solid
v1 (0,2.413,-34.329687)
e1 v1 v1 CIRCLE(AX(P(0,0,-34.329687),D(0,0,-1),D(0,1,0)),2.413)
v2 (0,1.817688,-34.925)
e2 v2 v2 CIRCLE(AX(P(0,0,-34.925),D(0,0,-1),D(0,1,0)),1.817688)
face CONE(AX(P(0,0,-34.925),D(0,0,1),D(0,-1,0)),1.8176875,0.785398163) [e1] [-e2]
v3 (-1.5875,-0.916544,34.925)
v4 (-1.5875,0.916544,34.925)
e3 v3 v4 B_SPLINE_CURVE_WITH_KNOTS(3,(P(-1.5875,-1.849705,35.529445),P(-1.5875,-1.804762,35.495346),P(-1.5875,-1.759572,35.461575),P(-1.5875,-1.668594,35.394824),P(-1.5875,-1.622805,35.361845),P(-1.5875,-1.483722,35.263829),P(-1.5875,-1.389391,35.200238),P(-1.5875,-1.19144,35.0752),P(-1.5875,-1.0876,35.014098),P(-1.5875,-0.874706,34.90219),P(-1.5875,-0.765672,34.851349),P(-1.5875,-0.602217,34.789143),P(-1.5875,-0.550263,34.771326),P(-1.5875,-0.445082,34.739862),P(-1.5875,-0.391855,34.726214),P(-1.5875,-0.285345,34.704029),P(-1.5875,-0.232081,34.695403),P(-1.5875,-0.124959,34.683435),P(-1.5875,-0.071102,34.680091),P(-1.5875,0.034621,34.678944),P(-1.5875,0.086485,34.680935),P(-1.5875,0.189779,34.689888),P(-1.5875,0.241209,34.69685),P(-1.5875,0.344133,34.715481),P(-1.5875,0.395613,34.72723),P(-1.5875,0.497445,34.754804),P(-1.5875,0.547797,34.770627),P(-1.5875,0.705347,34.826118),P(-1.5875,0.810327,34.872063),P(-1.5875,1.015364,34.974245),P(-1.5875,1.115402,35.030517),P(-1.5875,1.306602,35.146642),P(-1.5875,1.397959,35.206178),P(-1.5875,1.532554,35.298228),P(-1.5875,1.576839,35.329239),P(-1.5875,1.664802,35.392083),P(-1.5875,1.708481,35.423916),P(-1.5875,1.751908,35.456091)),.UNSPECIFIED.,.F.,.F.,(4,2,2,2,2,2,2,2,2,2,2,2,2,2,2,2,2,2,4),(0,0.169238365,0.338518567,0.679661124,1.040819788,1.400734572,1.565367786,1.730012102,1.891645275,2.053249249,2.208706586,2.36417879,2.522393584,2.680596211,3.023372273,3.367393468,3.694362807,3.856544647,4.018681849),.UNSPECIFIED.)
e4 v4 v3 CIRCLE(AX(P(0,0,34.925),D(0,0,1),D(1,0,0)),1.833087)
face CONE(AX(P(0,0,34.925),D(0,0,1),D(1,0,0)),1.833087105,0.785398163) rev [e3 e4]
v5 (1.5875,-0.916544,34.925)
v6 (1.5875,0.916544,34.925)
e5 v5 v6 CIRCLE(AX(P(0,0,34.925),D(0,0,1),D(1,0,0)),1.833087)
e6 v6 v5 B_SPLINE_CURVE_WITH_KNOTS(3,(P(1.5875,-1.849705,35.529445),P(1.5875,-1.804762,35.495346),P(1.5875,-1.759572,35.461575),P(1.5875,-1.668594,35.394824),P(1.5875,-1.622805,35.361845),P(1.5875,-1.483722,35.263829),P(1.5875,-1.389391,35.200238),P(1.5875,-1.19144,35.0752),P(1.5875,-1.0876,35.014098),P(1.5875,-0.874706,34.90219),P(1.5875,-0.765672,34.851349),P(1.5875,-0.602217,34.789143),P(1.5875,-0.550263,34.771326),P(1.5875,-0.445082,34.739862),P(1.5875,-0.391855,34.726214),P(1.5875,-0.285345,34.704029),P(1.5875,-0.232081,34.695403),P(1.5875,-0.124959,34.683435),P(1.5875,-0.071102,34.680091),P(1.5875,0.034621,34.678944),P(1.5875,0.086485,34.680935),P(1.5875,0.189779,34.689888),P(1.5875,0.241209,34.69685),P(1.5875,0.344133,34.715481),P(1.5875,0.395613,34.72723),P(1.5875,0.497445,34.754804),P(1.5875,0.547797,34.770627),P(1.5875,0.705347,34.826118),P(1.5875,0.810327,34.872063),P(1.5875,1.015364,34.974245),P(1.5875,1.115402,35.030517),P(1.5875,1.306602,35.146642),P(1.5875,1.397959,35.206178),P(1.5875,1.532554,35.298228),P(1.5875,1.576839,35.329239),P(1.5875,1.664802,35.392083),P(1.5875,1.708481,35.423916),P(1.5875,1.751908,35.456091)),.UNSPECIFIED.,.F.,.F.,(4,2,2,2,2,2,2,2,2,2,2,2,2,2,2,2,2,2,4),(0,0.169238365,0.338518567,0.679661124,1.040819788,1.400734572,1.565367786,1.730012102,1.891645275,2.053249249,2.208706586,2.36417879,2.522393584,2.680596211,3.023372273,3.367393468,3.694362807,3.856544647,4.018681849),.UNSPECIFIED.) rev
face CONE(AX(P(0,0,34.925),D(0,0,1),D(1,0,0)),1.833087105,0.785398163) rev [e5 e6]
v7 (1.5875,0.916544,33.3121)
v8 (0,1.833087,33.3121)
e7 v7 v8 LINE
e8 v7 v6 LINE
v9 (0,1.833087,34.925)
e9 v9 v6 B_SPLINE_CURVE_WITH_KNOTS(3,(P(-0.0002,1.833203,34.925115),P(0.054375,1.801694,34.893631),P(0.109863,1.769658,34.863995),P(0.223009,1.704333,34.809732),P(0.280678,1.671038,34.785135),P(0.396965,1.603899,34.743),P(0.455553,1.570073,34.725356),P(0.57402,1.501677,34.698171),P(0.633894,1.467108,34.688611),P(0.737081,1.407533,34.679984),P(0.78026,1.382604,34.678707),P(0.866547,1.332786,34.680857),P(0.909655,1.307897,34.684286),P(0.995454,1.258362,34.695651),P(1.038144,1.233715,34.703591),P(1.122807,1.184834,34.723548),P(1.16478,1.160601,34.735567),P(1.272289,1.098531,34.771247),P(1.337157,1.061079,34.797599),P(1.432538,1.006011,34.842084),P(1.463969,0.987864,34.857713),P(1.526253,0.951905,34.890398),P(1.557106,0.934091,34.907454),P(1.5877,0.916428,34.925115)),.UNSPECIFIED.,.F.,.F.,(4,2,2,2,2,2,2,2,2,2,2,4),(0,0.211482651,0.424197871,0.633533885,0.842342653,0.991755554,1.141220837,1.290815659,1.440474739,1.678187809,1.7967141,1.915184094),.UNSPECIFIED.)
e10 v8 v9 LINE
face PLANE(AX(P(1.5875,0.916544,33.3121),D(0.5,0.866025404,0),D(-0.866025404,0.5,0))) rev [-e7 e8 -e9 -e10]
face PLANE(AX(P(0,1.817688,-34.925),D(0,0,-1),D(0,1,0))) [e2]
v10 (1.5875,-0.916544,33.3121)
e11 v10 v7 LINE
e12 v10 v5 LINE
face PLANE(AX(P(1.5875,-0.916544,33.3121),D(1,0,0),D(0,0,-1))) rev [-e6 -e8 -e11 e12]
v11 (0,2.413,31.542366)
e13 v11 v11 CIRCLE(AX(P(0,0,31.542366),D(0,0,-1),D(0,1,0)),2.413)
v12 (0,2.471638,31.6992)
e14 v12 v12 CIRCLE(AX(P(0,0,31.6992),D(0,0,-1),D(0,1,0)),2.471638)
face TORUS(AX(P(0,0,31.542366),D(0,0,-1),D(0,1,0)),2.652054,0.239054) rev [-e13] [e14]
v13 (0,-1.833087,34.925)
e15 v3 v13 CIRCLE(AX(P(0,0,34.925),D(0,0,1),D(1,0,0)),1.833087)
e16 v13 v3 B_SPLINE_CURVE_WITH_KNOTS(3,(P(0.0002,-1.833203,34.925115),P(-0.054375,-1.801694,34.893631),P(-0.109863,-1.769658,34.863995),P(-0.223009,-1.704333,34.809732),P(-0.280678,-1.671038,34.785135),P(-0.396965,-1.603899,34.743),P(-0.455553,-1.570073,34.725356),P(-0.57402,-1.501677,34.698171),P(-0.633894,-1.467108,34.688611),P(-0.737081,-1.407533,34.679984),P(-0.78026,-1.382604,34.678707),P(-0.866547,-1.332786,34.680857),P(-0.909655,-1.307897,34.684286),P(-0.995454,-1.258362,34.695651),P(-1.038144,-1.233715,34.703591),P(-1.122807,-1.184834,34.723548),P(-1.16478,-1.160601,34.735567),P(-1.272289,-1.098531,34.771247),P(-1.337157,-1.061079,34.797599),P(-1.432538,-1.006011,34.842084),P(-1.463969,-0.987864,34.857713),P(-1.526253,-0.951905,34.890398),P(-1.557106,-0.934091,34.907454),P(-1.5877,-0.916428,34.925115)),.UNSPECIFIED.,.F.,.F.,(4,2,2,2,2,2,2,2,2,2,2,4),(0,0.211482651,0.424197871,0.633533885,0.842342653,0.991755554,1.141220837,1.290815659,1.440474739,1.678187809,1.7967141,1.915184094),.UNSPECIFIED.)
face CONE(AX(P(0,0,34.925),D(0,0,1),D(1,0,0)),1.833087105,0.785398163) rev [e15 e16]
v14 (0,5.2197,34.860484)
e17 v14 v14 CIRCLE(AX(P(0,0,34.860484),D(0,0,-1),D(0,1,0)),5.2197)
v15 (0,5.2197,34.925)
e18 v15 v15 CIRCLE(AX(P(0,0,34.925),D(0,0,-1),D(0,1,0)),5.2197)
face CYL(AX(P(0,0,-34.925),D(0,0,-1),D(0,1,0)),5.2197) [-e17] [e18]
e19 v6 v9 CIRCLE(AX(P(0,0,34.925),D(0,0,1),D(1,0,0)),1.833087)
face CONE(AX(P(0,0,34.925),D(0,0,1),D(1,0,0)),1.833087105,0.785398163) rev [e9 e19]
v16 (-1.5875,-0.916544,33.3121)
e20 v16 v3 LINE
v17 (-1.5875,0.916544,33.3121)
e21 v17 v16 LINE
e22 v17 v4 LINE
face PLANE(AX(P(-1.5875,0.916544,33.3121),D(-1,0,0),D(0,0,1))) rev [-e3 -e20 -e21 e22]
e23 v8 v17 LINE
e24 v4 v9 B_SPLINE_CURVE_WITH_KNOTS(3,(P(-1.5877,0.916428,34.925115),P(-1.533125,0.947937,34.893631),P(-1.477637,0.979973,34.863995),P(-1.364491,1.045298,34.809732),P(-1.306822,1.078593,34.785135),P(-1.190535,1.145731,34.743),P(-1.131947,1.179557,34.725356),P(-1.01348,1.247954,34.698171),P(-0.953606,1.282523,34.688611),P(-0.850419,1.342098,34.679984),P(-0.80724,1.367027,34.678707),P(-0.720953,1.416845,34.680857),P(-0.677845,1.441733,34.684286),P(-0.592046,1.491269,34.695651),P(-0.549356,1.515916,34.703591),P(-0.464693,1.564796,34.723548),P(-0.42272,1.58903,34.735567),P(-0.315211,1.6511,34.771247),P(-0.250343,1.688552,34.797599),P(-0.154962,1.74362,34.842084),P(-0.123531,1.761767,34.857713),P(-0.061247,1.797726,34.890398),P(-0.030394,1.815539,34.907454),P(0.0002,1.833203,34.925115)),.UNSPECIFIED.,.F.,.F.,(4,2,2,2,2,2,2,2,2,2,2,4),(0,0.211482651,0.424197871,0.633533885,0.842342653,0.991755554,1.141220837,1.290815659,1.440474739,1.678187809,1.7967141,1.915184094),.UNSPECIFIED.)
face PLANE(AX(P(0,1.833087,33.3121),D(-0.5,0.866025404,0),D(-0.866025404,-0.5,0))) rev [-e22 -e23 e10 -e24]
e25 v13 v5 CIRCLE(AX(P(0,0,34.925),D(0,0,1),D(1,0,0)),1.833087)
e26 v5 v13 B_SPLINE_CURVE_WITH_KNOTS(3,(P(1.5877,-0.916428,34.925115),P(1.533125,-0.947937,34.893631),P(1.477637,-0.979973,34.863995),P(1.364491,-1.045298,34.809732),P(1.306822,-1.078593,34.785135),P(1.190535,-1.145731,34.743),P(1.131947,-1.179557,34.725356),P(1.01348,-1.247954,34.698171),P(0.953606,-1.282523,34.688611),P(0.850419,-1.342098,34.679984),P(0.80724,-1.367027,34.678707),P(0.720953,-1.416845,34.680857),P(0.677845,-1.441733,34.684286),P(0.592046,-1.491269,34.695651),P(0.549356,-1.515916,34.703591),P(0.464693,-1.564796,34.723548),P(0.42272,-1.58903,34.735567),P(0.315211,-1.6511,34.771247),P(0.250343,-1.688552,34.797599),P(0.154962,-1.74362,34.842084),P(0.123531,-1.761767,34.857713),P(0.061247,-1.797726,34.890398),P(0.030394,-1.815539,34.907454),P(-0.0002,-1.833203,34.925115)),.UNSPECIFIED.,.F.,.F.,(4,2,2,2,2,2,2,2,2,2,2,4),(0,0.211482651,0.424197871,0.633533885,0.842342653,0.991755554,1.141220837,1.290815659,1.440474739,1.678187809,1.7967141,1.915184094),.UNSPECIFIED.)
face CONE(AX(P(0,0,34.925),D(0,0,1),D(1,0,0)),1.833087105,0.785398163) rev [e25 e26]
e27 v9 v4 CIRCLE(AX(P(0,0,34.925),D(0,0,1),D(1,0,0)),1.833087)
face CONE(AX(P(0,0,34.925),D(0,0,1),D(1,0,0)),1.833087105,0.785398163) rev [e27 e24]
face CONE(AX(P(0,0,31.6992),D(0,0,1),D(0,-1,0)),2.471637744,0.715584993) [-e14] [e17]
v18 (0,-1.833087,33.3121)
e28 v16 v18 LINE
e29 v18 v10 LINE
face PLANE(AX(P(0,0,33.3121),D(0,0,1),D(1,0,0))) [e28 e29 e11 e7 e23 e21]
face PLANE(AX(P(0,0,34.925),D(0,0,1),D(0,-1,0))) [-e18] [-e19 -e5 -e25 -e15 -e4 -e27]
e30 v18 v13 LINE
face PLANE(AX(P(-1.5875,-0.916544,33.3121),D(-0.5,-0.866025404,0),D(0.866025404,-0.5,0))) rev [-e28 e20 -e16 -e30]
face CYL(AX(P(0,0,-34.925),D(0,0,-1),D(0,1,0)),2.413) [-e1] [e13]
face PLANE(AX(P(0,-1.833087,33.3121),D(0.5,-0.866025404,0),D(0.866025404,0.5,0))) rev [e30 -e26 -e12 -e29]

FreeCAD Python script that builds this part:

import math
import FreeCAD as App
import Part
import Sketcher
from FreeCAD import Vector
Q = App.Units.Quantity


def add_polygon(sketch, points):
    """Adds a closed chain of lines whose ends are joined by coincident constraints."""
    first, n = sketch.GeometryCount, len(points)
    for a, b in zip(points, points[1:] + points[:1]):
        sketch.addGeometry(Part.LineSegment(App.Vector(*a, 0), App.Vector(*b, 0)), False)
    for i in range(n):
        sketch.addConstraint(Sketcher.Constraint("Coincident", first + i, 2, first + (i + 1) % n, 1))

doc = App.newDocument("Part")
body = doc.addObject("PartDesign::Body", "Body")

# Sketch on YZ plane
sketch1 = body.newObject("Sketcher::SketchObject", "Sketch")
sketch1.AttachmentSupport = (doc.getObject("YZ_Plane"), [""])
sketch1.MapMode = "FlatFace"
sketch1.addGeometry([
    Part.LineSegment(Vector(2.471638, 31.6992, 0), Vector(5.2197, 34.860484, 0)),  # 0
    Part.LineSegment(Vector(5.2197, 34.860484, 0), Vector(5.2197, 34.925, 0)),  # 1
    Part.LineSegment(Vector(5.2197, 34.925, 0), Vector(0, 34.925, 0)),  # 2
    Part.LineSegment(Vector(0, 34.925, 0), Vector(0, -34.925, 0)),  # 3
    Part.LineSegment(Vector(0, -34.925, 0), Vector(1.817687, -34.925, 0)),  # 4
    Part.LineSegment(Vector(1.817687, -34.925, 0), Vector(2.413, -34.329687, 0)),  # 5
    Part.LineSegment(Vector(2.413, -34.329687, 0), Vector(2.413, 31.542366, 0)),  # 6
    Part.ArcOfCircle(Part.Circle(Vector(2.652054, 31.542366, 0), Vector(0, 0, 1), 0.239054), math.radians(139), math.radians(180)),  # 7
], False)
sketch1.addConstraint([
    Sketcher.Constraint("Coincident", 0, 2, 1, 1),
    Sketcher.Constraint("Coincident", 1, 2, 2, 1),
    Sketcher.Constraint("Coincident", 2, 2, 3, 1),
    Sketcher.Constraint("Coincident", 3, 2, 4, 1),
    Sketcher.Constraint("Coincident", 4, 2, 5, 1),
    Sketcher.Constraint("Coincident", 5, 2, 6, 1),
    Sketcher.Constraint("Tangent", 6, 2, 7, 2),
    Sketcher.Constraint("Tangent", 7, 1, 0, 1),
    Sketcher.Constraint("Vertical", 1),
    Sketcher.Constraint("Horizontal", 2),
    Sketcher.Constraint("Vertical", 3),
    Sketcher.Constraint("Horizontal", 4),
    Sketcher.Constraint("Vertical", 6),
    Sketcher.Constraint("Symmetric", 2, 2, 3, 2, -1, 1),
    Sketcher.Constraint("Angle", 0, Q("49 deg")),
    Sketcher.Constraint("Angle", 5, Q("45 deg")),
    Sketcher.Constraint("DistanceY", 3, 2, 3, 1, Q("2.75 in")),
    Sketcher.Constraint("DistanceX", 2, 2, 2, 1, Q("0.2055 in")),
    Sketcher.Constraint("DistanceX", -1, 1, 5, 2, Q("0.095 in")),
    Sketcher.Constraint("DistanceY", -1, 1, 7, 1, Q("1.248 in")),
    Sketcher.Constraint("Radius", 7, Q("0.239054 mm")),
    Sketcher.Constraint("Distance", 5, Q("0.841899 mm")),
])
revolution = body.newObject("PartDesign::Revolution", "Revolution")
revolution.Profile = sketch1
revolution.ReferenceAxis = (sketch1, ["V_Axis"])
revolution.Angle = 360

# Sketch on XY plane
sketch2 = body.newObject("Sketcher::SketchObject", "Sketch001")
sketch2.AttachmentSupport = (doc.getObject("XY_Plane"), [""])
sketch2.MapMode = "FlatFace"
sketch2.AttachmentOffset = App.Placement(Vector(0, 0, 1.375 * 25.4), App.Rotation())
sketch2.addGeometry(Part.Circle(Vector(0, 0, 0), Vector(0, 0, 1), 1.833087), False)
sketch2.addConstraint([
    Sketcher.Constraint("Coincident", 0, 3, -1, 1),
    Sketcher.Constraint("Diameter", 0, Q("3.666174 mm")),
])
pocket1 = body.newObject("PartDesign::Pocket", "Pocket")
pocket1.Profile = sketch2
pocket1.Length = Q("0.0635 in")
pocket1.TaperAngle = -45

# Sketch on XY plane
sketch3 = body.newObject("Sketcher::SketchObject", "Sketch002")
sketch3.AttachmentSupport = (doc.getObject("XY_Plane"), [""])
sketch3.MapMode = "FlatFace"
sketch3.AttachmentOffset = App.Placement(Vector(0, 0, 1.375 * 25.4), App.Rotation())
add_polygon(sketch3, [(1.5875, -0.916544), (1.5875, 0.916544), (0, 1.833087), (-1.5875, 0.916544), (-1.5875, -0.916544), (0, -1.833087)])  # lines 0-5
sketch3.addConstraint([
    Sketcher.Constraint("Vertical", 0),
    Sketcher.Constraint("Vertical", 3),
    Sketcher.Constraint("Symmetric", 0, 2, 3, 2, -1, 1),
    Sketcher.Constraint("Symmetric", 1, 2, 4, 2, -1, 1),
    Sketcher.Constraint("PointOnObject", 1, 2, -2),
    Sketcher.Constraint("Parallel", 2, 5),
    Sketcher.Constraint("Horizontal", 0, 2, 2, 2),
    Sketcher.Constraint("Angle", 1, Q("150 deg")),
    Sketcher.Constraint("DistanceX", -1, 1, 0, 2, Q("0.0625 in")),
    Sketcher.Constraint("DistanceY", 0, 1, 0, 2, Q("1.833087 mm")),
])
pocket2 = body.newObject("PartDesign::Pocket", "Pocket001")
pocket2.Profile = sketch3
pocket2.Length = Q("0.0635 in")

doc.recompute()
